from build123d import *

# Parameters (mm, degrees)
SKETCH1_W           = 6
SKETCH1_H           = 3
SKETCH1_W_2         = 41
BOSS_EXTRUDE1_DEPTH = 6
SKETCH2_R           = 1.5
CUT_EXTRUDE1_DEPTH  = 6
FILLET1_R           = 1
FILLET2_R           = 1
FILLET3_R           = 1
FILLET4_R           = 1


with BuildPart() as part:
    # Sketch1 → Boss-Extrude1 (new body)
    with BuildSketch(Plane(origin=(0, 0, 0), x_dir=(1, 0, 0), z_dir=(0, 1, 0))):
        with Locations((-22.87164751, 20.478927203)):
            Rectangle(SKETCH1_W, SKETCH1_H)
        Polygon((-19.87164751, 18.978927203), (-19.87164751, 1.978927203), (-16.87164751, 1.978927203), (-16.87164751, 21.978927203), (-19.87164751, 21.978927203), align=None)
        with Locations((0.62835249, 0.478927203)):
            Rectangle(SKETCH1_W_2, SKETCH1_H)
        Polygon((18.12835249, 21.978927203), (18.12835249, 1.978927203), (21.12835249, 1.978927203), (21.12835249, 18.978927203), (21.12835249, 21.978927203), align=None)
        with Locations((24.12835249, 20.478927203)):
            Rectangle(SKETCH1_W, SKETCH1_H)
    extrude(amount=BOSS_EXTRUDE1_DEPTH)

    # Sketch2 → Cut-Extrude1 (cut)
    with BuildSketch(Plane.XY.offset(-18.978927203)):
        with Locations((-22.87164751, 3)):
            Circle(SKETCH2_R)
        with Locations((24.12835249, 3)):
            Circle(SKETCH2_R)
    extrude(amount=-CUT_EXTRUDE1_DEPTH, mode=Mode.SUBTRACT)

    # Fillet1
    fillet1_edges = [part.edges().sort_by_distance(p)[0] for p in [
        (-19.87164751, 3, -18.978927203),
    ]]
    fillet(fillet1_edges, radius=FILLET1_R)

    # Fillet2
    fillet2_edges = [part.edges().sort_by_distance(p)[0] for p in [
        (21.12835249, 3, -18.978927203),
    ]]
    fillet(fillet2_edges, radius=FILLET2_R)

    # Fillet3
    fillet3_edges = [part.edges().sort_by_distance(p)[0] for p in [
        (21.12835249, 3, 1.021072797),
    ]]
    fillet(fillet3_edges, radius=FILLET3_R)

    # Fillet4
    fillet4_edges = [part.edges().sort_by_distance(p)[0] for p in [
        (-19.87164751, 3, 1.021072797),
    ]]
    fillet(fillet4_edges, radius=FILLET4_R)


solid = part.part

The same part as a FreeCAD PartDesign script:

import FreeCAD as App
import Part
import Sketcher
from FreeCAD import Vector
Q = App.Units.Quantity


def edges_at(feature, points):
    """Names of the edges that pass closest to the given points."""
    edges = feature.Shape.Edges
    near = lambda p: min(range(len(edges)), key=lambda i: edges[i].distToShape(Part.Vertex(*p))[0])
    return sorted({f"Edge{near(p) + 1}" for p in points})


def add_polygon(sketch, points):
    """Adds a closed chain of lines whose ends are joined by coincident constraints."""
    first, n = sketch.GeometryCount, len(points)
    for a, b in zip(points, points[1:] + points[:1]):
        sketch.addGeometry(Part.LineSegment(App.Vector(*a, 0), App.Vector(*b, 0)), False)
    for i in range(n):
        sketch.addConstraint(Sketcher.Constraint("Coincident", first + i, 2, first + (i + 1) % n, 1))

doc = App.newDocument("Part")
body = doc.addObject("PartDesign::Body", "Body")

# Sketch on XZ plane
sketch1 = doc.addObject("Sketcher::SketchObject", "Sketch")
body.addObject(sketch1)
sketch1.AttachmentSupport = (doc.XZ_Plane, [""])
sketch1.MapMode = "FlatFace"
add_polygon(sketch1, [(-25.9, -22), (-25.9, -19), (-19.9, -19), (-19.9, 1), (21.1, 1), (21.1, -19), (27.1, -19), (27.1, -22), (18.1, -22), (18.1, -2), (-16.9, -2), (-16.9, -22)])  # lines 0-11
sketch1.addConstraint([
    Sketcher.Constraint("Vertical", 0),
    Sketcher.Constraint("Horizontal", 1),
    Sketcher.Constraint("Vertical", 2),
    Sketcher.Constraint("Horizontal", 3),
    Sketcher.Constraint("Vertical", 4),
    Sketcher.Constraint("Horizontal", 5),
    Sketcher.Constraint("Vertical", 6),
    Sketcher.Constraint("Horizontal", 7),
    Sketcher.Constraint("Vertical", 8),
    Sketcher.Constraint("Horizontal", 9),
    Sketcher.Constraint("Vertical", 10),
    Sketcher.Constraint("Horizontal", 11),
    Sketcher.Constraint("Horizontal", 1, 2, 4, 2),
    Sketcher.Constraint("Horizontal", 7, 2, 10, 2),
    Sketcher.Constraint("Equal", 1, 5),
    Sketcher.Constraint("Equal", 7, 11),
    Sketcher.Constraint("Equal", 4, 8),
    Sketcher.Constraint("DistanceX", 1, 1, 1, 2, Q("6 mm")),
    Sketcher.Constraint("DistanceX", 3, 1, 3, 2, Q("41 mm")),
    Sketcher.Constraint("DistanceX", 7, 2, 7, 1, Q("9 mm")),
    Sketcher.Constraint("DistanceY", 0, 1, 0, 2, Q("3 mm")),
    Sketcher.Constraint("DistanceY", 2, 1, 2, 2, Q("20 mm")),
    Sketcher.Constraint("DistanceX", 0, 2, -1, 1, Q("25.871648 mm")),
    Sketcher.Constraint("DistanceY", 0, 2, -1, 1, Q("18.978927 mm")),
])
pad1 = doc.addObject("PartDesign::Pad", "Pad")
body.addObject(pad1)
pad1.Profile = sketch1
pad1.Length = 6
pad1.Reversed = True

# Sketch on XY plane
sketch2 = doc.addObject("Sketcher::SketchObject", "Sketch001")
body.addObject(sketch2)
sketch2.AttachmentSupport = (doc.XY_Plane, [""])
sketch2.MapMode = "FlatFace"
sketch2.AttachmentOffset = App.Placement(Vector(0, 0, -18.978927), App.Rotation())
sketch2.addGeometry([
    Part.Circle(Vector(-22.9, 3, 0), Vector(0, 0, 1), 1.5),
    Part.Circle(Vector(24.1, 3, 0), Vector(0, 0, 1), 1.5),
], False)
sketch2.addConstraint([
    Sketcher.Constraint("Equal", 0, 1),
    Sketcher.Constraint("Horizontal", 0, 3, 1, 3),
    Sketcher.Constraint("Diameter", 0, Q("3 mm")),
    Sketcher.Constraint("DistanceY", -1, 1, 0, 3, Q("3 mm")),
    Sketcher.Constraint("DistanceX", 0, 3, 1, 3, Q("47 mm")),
    Sketcher.Constraint("DistanceX", 0, 3, -1, 1, Q("22.871648 mm")),
])
pocket1 = doc.addObject("PartDesign::Pocket", "Pocket")
body.addObject(pocket1)
pocket1.Profile = sketch2
pocket1.Length = 6
doc.recompute()

fillet = doc.addObject("PartDesign::Fillet", "Fillet")
body.addObject(fillet)
fillet.Base = (pocket1, edges_at(pocket1, [(-19.872, 3, -18.979)]))
fillet.Radius = 1
doc.recompute()

fillet2 = doc.addObject("PartDesign::Fillet", "Fillet001")
body.addObject(fillet2)
fillet2.Base = (fillet, edges_at(fillet, [(21.128, 3, -18.979)]))
fillet2.Radius = 1
doc.recompute()

fillet3 = doc.addObject("PartDesign::Fillet", "Fillet002")
body.addObject(fillet3)
fillet3.Base = (fillet2, edges_at(fillet2, [(21.128, 3, 1.021)]))
fillet3.Radius = 1
doc.recompute()

fillet4 = doc.addObject("PartDesign::Fillet", "Fillet003")
body.addObject(fillet4)
fillet4.Base = (fillet3, edges_at(fillet3, [(-19.872, 3, 1.021)]))
fillet4.Radius = 1

doc.recompute()
